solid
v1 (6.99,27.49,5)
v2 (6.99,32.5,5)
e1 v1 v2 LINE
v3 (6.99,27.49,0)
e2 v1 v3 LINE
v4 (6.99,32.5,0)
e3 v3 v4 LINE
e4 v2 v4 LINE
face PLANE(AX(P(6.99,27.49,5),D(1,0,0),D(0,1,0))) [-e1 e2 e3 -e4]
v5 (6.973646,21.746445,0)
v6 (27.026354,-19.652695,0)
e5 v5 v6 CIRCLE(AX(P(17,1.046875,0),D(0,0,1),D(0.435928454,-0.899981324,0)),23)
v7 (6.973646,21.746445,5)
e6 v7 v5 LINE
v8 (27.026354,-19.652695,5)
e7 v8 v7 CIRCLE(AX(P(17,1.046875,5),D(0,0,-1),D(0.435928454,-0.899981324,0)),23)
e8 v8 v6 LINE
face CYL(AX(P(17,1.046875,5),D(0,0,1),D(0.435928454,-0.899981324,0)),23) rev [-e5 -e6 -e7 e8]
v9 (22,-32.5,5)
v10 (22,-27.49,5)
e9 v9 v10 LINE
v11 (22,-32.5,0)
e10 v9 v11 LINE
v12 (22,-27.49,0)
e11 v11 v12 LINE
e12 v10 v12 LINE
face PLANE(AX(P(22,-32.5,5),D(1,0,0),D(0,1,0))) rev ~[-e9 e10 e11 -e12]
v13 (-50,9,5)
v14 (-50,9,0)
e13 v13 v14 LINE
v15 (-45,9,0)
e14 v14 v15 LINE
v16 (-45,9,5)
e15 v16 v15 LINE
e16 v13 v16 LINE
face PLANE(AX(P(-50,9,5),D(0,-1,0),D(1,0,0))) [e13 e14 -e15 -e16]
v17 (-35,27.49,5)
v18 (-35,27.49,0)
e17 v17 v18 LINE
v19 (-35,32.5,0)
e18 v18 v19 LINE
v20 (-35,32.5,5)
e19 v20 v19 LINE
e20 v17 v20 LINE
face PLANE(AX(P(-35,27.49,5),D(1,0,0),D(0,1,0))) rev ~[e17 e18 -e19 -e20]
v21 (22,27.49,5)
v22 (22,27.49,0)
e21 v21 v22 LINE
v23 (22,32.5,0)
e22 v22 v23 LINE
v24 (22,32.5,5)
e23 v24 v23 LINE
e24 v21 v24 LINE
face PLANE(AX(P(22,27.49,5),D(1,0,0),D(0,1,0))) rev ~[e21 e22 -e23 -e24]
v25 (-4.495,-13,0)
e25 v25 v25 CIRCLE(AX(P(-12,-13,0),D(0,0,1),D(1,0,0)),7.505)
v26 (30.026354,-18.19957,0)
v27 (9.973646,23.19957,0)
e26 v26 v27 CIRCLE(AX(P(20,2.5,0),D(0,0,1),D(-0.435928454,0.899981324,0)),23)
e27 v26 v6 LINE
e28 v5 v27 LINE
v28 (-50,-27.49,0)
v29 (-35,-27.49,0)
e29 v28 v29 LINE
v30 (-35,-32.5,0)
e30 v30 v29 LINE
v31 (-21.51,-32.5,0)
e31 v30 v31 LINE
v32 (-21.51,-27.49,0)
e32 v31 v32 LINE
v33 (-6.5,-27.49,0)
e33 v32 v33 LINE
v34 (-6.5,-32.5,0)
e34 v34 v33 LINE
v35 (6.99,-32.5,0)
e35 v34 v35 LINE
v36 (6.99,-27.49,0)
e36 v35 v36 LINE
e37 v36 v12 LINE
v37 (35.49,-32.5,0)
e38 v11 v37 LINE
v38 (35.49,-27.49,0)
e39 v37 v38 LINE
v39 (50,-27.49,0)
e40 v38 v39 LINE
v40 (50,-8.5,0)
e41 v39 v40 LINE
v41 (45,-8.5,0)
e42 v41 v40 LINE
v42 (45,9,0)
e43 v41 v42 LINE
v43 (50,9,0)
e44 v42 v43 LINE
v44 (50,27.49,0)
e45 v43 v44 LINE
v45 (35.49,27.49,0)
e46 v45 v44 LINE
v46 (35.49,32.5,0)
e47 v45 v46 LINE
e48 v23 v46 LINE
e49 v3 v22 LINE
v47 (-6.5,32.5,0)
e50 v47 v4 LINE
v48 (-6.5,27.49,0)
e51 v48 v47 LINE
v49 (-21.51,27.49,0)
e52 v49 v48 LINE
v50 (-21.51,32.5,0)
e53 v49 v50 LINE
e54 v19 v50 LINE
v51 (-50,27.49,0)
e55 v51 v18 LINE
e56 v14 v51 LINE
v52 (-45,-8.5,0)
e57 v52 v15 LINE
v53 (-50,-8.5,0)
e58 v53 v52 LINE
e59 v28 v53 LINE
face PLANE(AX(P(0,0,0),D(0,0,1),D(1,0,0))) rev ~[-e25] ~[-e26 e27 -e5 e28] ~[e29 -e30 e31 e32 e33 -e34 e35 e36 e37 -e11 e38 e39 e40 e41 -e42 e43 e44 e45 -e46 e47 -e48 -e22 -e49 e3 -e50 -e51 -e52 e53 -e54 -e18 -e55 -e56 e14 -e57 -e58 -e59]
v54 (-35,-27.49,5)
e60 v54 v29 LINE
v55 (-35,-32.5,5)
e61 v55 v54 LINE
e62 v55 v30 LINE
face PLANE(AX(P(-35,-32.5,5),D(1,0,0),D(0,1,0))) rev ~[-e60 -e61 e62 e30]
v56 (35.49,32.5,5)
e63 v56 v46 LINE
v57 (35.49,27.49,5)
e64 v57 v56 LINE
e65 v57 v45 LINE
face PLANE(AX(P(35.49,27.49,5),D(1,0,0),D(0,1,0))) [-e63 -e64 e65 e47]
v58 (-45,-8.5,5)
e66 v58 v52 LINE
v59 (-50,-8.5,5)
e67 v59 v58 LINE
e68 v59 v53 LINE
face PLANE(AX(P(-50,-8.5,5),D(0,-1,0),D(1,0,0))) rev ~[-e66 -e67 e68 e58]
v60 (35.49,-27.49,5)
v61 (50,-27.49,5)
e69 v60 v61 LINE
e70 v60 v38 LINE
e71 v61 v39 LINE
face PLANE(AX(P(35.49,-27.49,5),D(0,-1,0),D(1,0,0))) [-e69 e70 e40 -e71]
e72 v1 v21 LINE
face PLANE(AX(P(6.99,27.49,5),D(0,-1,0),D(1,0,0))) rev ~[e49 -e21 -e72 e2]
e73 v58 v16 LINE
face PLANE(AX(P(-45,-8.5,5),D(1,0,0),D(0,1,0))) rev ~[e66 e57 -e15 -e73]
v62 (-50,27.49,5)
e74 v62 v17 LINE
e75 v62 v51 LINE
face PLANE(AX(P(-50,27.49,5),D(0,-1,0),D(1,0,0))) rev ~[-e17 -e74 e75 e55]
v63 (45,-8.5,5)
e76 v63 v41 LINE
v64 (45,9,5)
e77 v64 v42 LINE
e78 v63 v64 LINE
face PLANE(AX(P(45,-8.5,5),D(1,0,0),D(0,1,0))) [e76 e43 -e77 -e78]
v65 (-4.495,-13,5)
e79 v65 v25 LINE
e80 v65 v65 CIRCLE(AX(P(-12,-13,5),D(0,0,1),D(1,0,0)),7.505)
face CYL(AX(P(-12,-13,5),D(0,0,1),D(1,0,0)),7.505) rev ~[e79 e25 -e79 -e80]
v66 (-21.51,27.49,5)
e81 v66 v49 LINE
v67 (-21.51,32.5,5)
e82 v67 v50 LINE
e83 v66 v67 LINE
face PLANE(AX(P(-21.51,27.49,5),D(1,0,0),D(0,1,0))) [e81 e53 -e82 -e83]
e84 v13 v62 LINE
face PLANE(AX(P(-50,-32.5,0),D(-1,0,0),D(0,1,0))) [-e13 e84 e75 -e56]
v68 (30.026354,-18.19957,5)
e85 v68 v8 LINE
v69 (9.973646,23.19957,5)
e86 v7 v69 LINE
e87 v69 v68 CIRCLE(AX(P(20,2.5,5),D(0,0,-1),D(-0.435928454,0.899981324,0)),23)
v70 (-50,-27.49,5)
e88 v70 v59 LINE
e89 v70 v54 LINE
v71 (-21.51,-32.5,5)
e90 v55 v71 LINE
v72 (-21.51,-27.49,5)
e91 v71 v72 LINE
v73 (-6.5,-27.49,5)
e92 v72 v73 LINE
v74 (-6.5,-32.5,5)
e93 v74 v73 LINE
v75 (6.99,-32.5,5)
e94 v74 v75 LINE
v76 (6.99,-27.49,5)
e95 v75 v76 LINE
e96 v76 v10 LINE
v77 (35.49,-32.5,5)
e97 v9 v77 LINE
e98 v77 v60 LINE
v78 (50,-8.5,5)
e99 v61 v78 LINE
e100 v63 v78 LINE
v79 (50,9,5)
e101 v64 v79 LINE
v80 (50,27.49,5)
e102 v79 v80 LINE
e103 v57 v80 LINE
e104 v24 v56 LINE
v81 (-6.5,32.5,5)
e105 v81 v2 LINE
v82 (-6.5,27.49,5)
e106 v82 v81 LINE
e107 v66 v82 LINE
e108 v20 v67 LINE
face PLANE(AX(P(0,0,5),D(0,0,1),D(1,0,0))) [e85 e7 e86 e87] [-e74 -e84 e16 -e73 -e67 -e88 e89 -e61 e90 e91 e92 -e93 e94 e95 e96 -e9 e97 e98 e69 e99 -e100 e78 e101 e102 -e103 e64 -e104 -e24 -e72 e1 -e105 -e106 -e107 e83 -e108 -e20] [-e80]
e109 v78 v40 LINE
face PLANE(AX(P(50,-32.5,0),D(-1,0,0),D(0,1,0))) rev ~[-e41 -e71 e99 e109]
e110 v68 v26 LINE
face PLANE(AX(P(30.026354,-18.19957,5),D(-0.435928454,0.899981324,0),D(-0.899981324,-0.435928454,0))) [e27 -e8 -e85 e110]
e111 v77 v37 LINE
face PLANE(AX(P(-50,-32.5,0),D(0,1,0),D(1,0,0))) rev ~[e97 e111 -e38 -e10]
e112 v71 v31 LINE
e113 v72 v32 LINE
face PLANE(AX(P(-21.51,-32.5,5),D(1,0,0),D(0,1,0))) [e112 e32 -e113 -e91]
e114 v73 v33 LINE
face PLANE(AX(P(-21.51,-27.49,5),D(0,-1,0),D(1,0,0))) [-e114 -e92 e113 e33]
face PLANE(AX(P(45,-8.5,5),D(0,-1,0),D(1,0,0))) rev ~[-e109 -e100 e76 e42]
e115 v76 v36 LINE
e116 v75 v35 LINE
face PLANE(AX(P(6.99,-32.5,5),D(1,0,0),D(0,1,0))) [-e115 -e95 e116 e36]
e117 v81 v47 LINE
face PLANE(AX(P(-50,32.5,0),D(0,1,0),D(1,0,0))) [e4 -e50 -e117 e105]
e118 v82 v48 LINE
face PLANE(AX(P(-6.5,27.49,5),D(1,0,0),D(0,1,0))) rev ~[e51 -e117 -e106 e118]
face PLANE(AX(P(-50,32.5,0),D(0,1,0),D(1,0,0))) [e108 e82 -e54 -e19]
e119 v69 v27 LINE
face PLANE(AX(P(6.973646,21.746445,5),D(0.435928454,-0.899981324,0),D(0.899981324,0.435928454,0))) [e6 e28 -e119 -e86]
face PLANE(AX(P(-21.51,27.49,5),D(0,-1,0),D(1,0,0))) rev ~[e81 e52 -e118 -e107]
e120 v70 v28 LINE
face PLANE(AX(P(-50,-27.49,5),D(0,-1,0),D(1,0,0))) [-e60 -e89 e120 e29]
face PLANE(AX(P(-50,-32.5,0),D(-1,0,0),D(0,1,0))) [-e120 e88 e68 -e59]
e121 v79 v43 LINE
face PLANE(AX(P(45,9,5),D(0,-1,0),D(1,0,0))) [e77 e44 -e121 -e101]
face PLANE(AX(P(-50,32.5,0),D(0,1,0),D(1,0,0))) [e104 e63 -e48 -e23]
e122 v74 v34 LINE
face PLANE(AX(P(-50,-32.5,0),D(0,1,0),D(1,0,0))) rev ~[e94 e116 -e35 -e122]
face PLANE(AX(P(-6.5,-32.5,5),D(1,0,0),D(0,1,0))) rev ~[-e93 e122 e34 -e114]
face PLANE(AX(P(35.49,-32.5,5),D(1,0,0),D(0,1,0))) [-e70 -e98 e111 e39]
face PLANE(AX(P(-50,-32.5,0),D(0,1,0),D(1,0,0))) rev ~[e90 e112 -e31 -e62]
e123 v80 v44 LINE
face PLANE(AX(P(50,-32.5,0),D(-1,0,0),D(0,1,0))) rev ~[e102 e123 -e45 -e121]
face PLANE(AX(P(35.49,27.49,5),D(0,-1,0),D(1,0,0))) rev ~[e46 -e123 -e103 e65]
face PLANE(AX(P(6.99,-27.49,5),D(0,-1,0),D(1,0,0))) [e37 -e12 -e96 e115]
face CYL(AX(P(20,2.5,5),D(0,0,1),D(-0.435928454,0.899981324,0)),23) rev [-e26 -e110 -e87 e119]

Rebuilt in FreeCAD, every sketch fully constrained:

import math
import FreeCAD as App
import Part
import Sketcher
from FreeCAD import Vector

doc = App.newDocument("Part")
body = doc.addObject("PartDesign::Body", "Body")

sketch1 = body.newObject("Sketcher::SketchObject", "Sketch")
sketch1.AttachmentSupport = (doc.getObject("XY_Plane"), [""])
sketch1.MapMode = "FlatFace"
sketch1.addGeometry([
    Part.LineSegment(Vector(-50, 32, 0), Vector(-50, -32, 0)),
    Part.LineSegment(Vector(-50, -32, 0), Vector(50, -32, 0)),
    Part.LineSegment(Vector(50, -32, 0), Vector(50, 32, 0)),
    Part.LineSegment(Vector(50, 32, 0), Vector(-50, 32, 0)),
], False)
sketch1.addConstraint([
    Sketcher.Constraint("Coincident", 0, 2, 1, 1),
    Sketcher.Constraint("Coincident", 1, 2, 2, 1),
    Sketcher.Constraint("Coincident", 2, 2, 3, 1),
    Sketcher.Constraint("Coincident", 3, 2, 0, 1),
    Sketcher.Constraint("Vertical", 0),
    Sketcher.Constraint("Horizontal", 1),
    Sketcher.Constraint("Vertical", 2),
    Sketcher.Constraint("Horizontal", 3),
    Sketcher.Constraint("Symmetric", 0, 2, 2, 2, -1, 1),
    Sketcher.Constraint("DistanceX", 1, 1, 1, 2, 100.0),
    Sketcher.Constraint("DistanceY", 0, 2, 0, 1, 65.0),
])
pad1 = body.newObject("PartDesign::Pad", "Pad")
pad1.Profile = sketch1
pad1.Length = 5

sketch2 = body.newObject("Sketcher::SketchObject", "Sketch001")
sketch2.AttachmentSupport = (doc.getObject("XY_Plane"), [""])
sketch2.MapMode = "FlatFace"
sketch2.AttachmentOffset = App.Placement(Vector(0, 0, 5), App.Rotation())
sketch2.addGeometry([
    Part.LineSegment(Vector(-50, 32, 0), Vector(-50, 27, 0)),
    Part.LineSegment(Vector(-50, 27, 0), Vector(-35, 27, 0)),
    Part.LineSegment(Vector(-35, 27, 0), Vector(-35, 32, 0)),
    Part.LineSegment(Vector(-35, 32, 0), Vector(-50, 32, 0)),
    Part.LineSegment(Vector(-22, 32, 0), Vector(-22, 27, 0)),
    Part.LineSegment(Vector(-22, 27, 0), Vector(-6, 27, 0)),
    Part.LineSegment(Vector(-6, 27, 0), Vector(-6, 32, 0)),
    Part.LineSegment(Vector(-6, 32, 0), Vector(-22, 32, 0)),
    Part.LineSegment(Vector(7, 32, 0), Vector(7, 27, 0)),
    Part.LineSegment(Vector(7, 27, 0), Vector(22, 27, 0)),
    Part.LineSegment(Vector(22, 27, 0), Vector(22, 32, 0)),
    Part.LineSegment(Vector(22, 32, 0), Vector(7, 32, 0)),
    Part.LineSegment(Vector(35, 32, 0), Vector(35, 27, 0)),
    Part.LineSegment(Vector(35, 27, 0), Vector(50, 27, 0)),
    Part.LineSegment(Vector(50, 27, 0), Vector(50, 32, 0)),
    Part.LineSegment(Vector(50, 32, 0), Vector(35, 32, 0)),
    Part.LineSegment(Vector(-50, 9, 0), Vector(-50, -8, 0)),
    Part.LineSegment(Vector(-50, -8, 0), Vector(-45, -8, 0)),
    Part.LineSegment(Vector(-45, -8, 0), Vector(-45, 9, 0)),
    Part.LineSegment(Vector(-45, 9, 0), Vector(-50, 9, 0)),
    Part.LineSegment(Vector(45, 9, 0), Vector(45, -8, 0)),
    Part.LineSegment(Vector(45, -8, 0), Vector(50, -8, 0)),
    Part.LineSegment(Vector(50, -8, 0), Vector(50, 9, 0)),
    Part.LineSegment(Vector(50, 9, 0), Vector(45, 9, 0)),
    Part.LineSegment(Vector(35, -27, 0), Vector(35, -32, 0)),
    Part.LineSegment(Vector(35, -32, 0), Vector(50, -32, 0)),
    Part.LineSegment(Vector(50, -32, 0), Vector(50, -27, 0)),
    Part.LineSegment(Vector(50, -27, 0), Vector(35, -27, 0)),
    Part.LineSegment(Vector(7, -27, 0), Vector(7, -32, 0)),
    Part.LineSegment(Vector(7, -32, 0), Vector(22, -32, 0)),
    Part.LineSegment(Vector(22, -32, 0), Vector(22, -27, 0)),
    Part.LineSegment(Vector(22, -27, 0), Vector(7, -27, 0)),
    Part.LineSegment(Vector(-22, -27, 0), Vector(-22, -32, 0)),
    Part.LineSegment(Vector(-22, -32, 0), Vector(-6, -32, 0)),
    Part.LineSegment(Vector(-6, -32, 0), Vector(-6, -27, 0)),
    Part.LineSegment(Vector(-6, -27, 0), Vector(-22, -27, 0)),
    Part.LineSegment(Vector(-50, -27, 0), Vector(-50, -32, 0)),
    Part.LineSegment(Vector(-50, -32, 0), Vector(-35, -32, 0)),
    Part.LineSegment(Vector(-35, -32, 0), Vector(-35, -27, 0)),
    Part.LineSegment(Vector(-35, -27, 0), Vector(-50, -27, 0)),
], False)
sketch2.addConstraint([
    Sketcher.Constraint("Coincident", 0, 2, 1, 1),
    Sketcher.Constraint("Coincident", 1, 2, 2, 1),
    Sketcher.Constraint("Coincident", 2, 2, 3, 1),
    Sketcher.Constraint("Coincident", 3, 2, 0, 1),
    Sketcher.Constraint("Coincident", 4, 2, 5, 1),
    Sketcher.Constraint("Coincident", 5, 2, 6, 1),
    Sketcher.Constraint("Coincident", 6, 2, 7, 1),
    Sketcher.Constraint("Coincident", 7, 2, 4, 1),
    Sketcher.Constraint("Coincident", 8, 2, 9, 1),
    Sketcher.Constraint("Coincident", 9, 2, 10, 1),
    Sketcher.Constraint("Coincident", 10, 2, 11, 1),
    Sketcher.Constraint("Coincident", 11, 2, 8, 1),
    Sketcher.Constraint("Coincident", 12, 2, 13, 1),
    Sketcher.Constraint("Coincident", 13, 2, 14, 1),
    Sketcher.Constraint("Coincident", 14, 2, 15, 1),
    Sketcher.Constraint("Coincident", 15, 2, 12, 1),
    Sketcher.Constraint("Coincident", 16, 2, 17, 1),
    Sketcher.Constraint("Coincident", 17, 2, 18, 1),
    Sketcher.Constraint("Coincident", 18, 2, 19, 1),
    Sketcher.Constraint("Coincident", 19, 2, 16, 1),
    Sketcher.Constraint("Coincident", 20, 2, 21, 1),
    Sketcher.Constraint("Coincident", 21, 2, 22, 1),
    Sketcher.Constraint("Coincident", 22, 2, 23, 1),
    Sketcher.Constraint("Coincident", 23, 2, 20, 1),
    Sketcher.Constraint("Coincident", 24, 2, 25, 1),
    Sketcher.Constraint("Coincident", 25, 2, 26, 1),
    Sketcher.Constraint("Coincident", 26, 2, 27, 1),
    Sketcher.Constraint("Coincident", 27, 2, 24, 1),
    Sketcher.Constraint("Coincident", 28, 2, 29, 1),
    Sketcher.Constraint("Coincident", 29, 2, 30, 1),
    Sketcher.Constraint("Coincident", 30, 2, 31, 1),
    Sketcher.Constraint("Coincident", 31, 2, 28, 1),
    Sketcher.Constraint("Coincident", 32, 2, 33, 1),
    Sketcher.Constraint("Coincident", 33, 2, 34, 1),
    Sketcher.Constraint("Coincident", 34, 2, 35, 1),
    Sketcher.Constraint("Coincident", 35, 2, 32, 1),
    Sketcher.Constraint("Coincident", 36, 2, 37, 1),
    Sketcher.Constraint("Coincident", 37, 2, 38, 1),
    Sketcher.Constraint("Coincident", 38, 2, 39, 1),
    Sketcher.Constraint("Coincident", 39, 2, 36, 1),
    Sketcher.Constraint("Vertical", 0),
    Sketcher.Constraint("Horizontal", 1),
    Sketcher.Constraint("Vertical", 2),
    Sketcher.Constraint("Horizontal", 3),
    Sketcher.Constraint("Vertical", 4),
    Sketcher.Constraint("Horizontal", 5),
    Sketcher.Constraint("Vertical", 6),
    Sketcher.Constraint("Horizontal", 7),
    Sketcher.Constraint("Vertical", 8),
    Sketcher.Constraint("Horizontal", 9),
    Sketcher.Constraint("Vertical", 10),
    Sketcher.Constraint("Horizontal", 11),
    Sketcher.Constraint("Vertical", 12),
    Sketcher.Constraint("Horizontal", 13),
    Sketcher.Constraint("Vertical", 14),
    Sketcher.Constraint("Horizontal", 15),
    Sketcher.Constraint("Vertical", 16),
    Sketcher.Constraint("Horizontal", 17),
    Sketcher.Constraint("Vertical", 18),
    Sketcher.Constraint("Horizontal", 19),
    Sketcher.Constraint("Vertical", 20),
    Sketcher.Constraint("Horizontal", 21),
    Sketcher.Constraint("Vertical", 22),
    Sketcher.Constraint("Horizontal", 23),
    Sketcher.Constraint("Vertical", 24),
    Sketcher.Constraint("Horizontal", 25),
    Sketcher.Constraint("Vertical", 26),
    Sketcher.Constraint("Horizontal", 27),
    Sketcher.Constraint("Vertical", 28),
    Sketcher.Constraint("Horizontal", 29),
    Sketcher.Constraint("Vertical", 30),
    Sketcher.Constraint("Horizontal", 31),
    Sketcher.Constraint("Vertical", 32),
    Sketcher.Constraint("Horizontal", 33),
    Sketcher.Constraint("Vertical", 34),
    Sketcher.Constraint("Horizontal", 35),
    Sketcher.Constraint("Vertical", 36),
    Sketcher.Constraint("Horizontal", 37),
    Sketcher.Constraint("Vertical", 38),
    Sketcher.Constraint("Horizontal", 39),
    Sketcher.Constraint("Symmetric", 3, 2, 25, 2, -1, 1),
    Sketcher.Constraint("Symmetric", 14, 2, 36, 2, -1, 1),
    Sketcher.Constraint("Symmetric", 0, 2, 13, 2, -2),
    Sketcher.Constraint("Symmetric", 17, 2, 20, 2, -2),
    Sketcher.Constraint("Symmetric", 19, 2, 22, 2, -2),
    Sketcher.Constraint("Symmetric", 15, 2, 24, 2, -1),
    Sketcher.Constraint("Symmetric", 11, 2, 28, 2, -1),
    Sketcher.Constraint("Symmetric", 9, 2, 30, 2, -1),
    Sketcher.Constraint("Symmetric", 7, 2, 32, 2, -1),
    Sketcher.Constraint("Symmetric", 5, 2, 34, 2, -1),
    Sketcher.Constraint("Symmetric", 1, 2, 38, 2, -1),
    Sketcher.Constraint("Horizontal", 1, 2, 4, 2),
    Sketcher.Constraint("Horizontal", 3, 2, 6, 2),
    Sketcher.Constraint("Horizontal", 5, 2, 8, 2),
    Sketcher.Constraint("Horizontal", 7, 2, 10, 2),
    Sketcher.Constraint("Horizontal", 27, 2, 30, 2),
    Sketcher.Constraint("Vertical", 3, 2, 16, 2),
    Sketcher.Constraint("Equal", 7, 9),
    Sketcher.Constraint("DistanceX", 1, 1, 1, 2, 15.0),
    Sketcher.Constraint("DistanceX", 17, 1, 17, 2, 5.0),
    Sketcher.Constraint("DistanceY", 16, 2, 16, 1, 17.5),
    Sketcher.Constraint("DistanceX", 0, 2, -1, 1, 50.0),
    Sketcher.Constraint("DistanceX", -1, 1, 9, 2, 22.0),
    Sketcher.Constraint("DistanceY", -1, 1, 18, 2, 9.0),
    Sketcher.Constraint("DistanceY", 16, 2, 3, 2, 41.0),
    Sketcher.Constraint("DistanceX", 5, 1, 5, 2, 15.01),
    Sketcher.Constraint("DistanceX", 13, 1, 13, 2, 14.51),
    Sketcher.Constraint("DistanceY", 0, 2, 0, 1, 5.01),
    Sketcher.Constraint("DistanceX", 5, 2, -1, 1, 6.5),
])
pocket1 = body.newObject("PartDesign::Pocket", "Pocket")
pocket1.Profile = sketch2
pocket1.Length = 5

sketch3 = body.newObject("Sketcher::SketchObject", "Sketch002")
sketch3.AttachmentSupport = (doc.getObject("XY_Plane"), [""])
sketch3.MapMode = "FlatFace"
sketch3.AttachmentOffset = App.Placement(Vector(0, 0, 5), App.Rotation())
sketch3.addGeometry([
    Part.Circle(Vector(-12, -13, 0), Vector(0, 0, 1), 7.5),
    Part.LineSegment(Vector(10, 23.2, 0), Vector(7, 21.7, 0)),
    Part.ArcOfCircle(Part.Circle(Vector(17, 1, 0), Vector(0, 0, 1), 23), math.radians(116), math.radians(296)),
    Part.LineSegment(Vector(27, -19.7, 0), Vector(30, -18.2, 0)),
    Part.ArcOfCircle(Part.Circle(Vector(20, 2.5, 0), Vector(0, 0, 1), 23), math.radians(-64), math.radians(116)),
], False)
sketch3.addConstraint([
    Sketcher.Constraint("Tangent", 1, 2, 2, 1),
    Sketcher.Constraint("Tangent", 2, 2, 3, 1),
    Sketcher.Constraint("Tangent", 3, 2, 4, 1),
    Sketcher.Constraint("Tangent", 4, 2, 1, 1),
    Sketcher.Constraint("Equal", 2, 4),
    Sketcher.Constraint("Radius", 2, 23.0),
    Sketcher.Constraint("Diameter", 0, 15.01),
    Sketcher.Constraint("DistanceX", 0, 3, -1, 1, 12.0),
    Sketcher.Constraint("DistanceY", 0, 3, -1, 1, 13.0),
    Sketcher.Constraint("DistanceX", -1, 1, 2, 3, 17.0),
    Sketcher.Constraint("DistanceX", -1, 1, 4, 3, 20.0),
    Sketcher.Constraint("DistanceY", -1, 1, 4, 3, 2.5),
    Sketcher.Constraint("DistanceY", 3, 2, -1, 1, 18.19957),
])
pocket2 = body.newObject("PartDesign::Pocket", "Pocket001")
pocket2.Profile = sketch3
pocket2.Length = 10

doc.recompute()
